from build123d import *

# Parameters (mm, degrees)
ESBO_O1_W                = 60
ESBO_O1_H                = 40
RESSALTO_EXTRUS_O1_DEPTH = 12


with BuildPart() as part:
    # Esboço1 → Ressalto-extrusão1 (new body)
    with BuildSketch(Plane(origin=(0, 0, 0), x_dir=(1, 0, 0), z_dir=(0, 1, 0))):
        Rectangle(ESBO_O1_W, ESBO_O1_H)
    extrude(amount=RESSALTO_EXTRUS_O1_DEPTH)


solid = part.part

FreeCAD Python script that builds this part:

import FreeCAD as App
import Part
import Sketcher
Q = App.Units.Quantity


def add_polygon(sketch, points):
    """Adds a closed chain of lines whose ends are joined by coincident constraints."""
    first, n = sketch.GeometryCount, len(points)
    for a, b in zip(points, points[1:] + points[:1]):
        sketch.addGeometry(Part.LineSegment(App.Vector(*a, 0), App.Vector(*b, 0)), False)
    for i in range(n):
        sketch.addConstraint(Sketcher.Constraint("Coincident", first + i, 2, first + (i + 1) % n, 1))

doc = App.newDocument("Part")
body = doc.addObject("PartDesign::Body", "Body")

# Sketch on XZ plane
sketch1 = doc.addObject("Sketcher::SketchObject", "Sketch")
body.addObject(sketch1)
sketch1.AttachmentSupport = (doc.XZ_Plane, [""])
sketch1.MapMode = "FlatFace"
add_polygon(sketch1, [(-30, -20), (-30, 20), (30, 20), (30, -20)])  # lines 0-3
sketch1.addConstraint([
    Sketcher.Constraint("Vertical", 0),
    Sketcher.Constraint("Horizontal", 1),
    Sketcher.Constraint("Vertical", 2),
    Sketcher.Constraint("Horizontal", 3),
    Sketcher.Constraint("Symmetric", 0, 2, 2, 2, -1, 1),
    Sketcher.Constraint("DistanceX", 1, 1, 1, 2, Q("60 mm")),
    Sketcher.Constraint("DistanceY", 0, 1, 0, 2, Q("40 mm")),
])
pad1 = doc.addObject("PartDesign::Pad", "Pad")
body.addObject(pad1)
pad1.Profile = sketch1
pad1.Length = 12
pad1.Reversed = True

doc.recompute()
